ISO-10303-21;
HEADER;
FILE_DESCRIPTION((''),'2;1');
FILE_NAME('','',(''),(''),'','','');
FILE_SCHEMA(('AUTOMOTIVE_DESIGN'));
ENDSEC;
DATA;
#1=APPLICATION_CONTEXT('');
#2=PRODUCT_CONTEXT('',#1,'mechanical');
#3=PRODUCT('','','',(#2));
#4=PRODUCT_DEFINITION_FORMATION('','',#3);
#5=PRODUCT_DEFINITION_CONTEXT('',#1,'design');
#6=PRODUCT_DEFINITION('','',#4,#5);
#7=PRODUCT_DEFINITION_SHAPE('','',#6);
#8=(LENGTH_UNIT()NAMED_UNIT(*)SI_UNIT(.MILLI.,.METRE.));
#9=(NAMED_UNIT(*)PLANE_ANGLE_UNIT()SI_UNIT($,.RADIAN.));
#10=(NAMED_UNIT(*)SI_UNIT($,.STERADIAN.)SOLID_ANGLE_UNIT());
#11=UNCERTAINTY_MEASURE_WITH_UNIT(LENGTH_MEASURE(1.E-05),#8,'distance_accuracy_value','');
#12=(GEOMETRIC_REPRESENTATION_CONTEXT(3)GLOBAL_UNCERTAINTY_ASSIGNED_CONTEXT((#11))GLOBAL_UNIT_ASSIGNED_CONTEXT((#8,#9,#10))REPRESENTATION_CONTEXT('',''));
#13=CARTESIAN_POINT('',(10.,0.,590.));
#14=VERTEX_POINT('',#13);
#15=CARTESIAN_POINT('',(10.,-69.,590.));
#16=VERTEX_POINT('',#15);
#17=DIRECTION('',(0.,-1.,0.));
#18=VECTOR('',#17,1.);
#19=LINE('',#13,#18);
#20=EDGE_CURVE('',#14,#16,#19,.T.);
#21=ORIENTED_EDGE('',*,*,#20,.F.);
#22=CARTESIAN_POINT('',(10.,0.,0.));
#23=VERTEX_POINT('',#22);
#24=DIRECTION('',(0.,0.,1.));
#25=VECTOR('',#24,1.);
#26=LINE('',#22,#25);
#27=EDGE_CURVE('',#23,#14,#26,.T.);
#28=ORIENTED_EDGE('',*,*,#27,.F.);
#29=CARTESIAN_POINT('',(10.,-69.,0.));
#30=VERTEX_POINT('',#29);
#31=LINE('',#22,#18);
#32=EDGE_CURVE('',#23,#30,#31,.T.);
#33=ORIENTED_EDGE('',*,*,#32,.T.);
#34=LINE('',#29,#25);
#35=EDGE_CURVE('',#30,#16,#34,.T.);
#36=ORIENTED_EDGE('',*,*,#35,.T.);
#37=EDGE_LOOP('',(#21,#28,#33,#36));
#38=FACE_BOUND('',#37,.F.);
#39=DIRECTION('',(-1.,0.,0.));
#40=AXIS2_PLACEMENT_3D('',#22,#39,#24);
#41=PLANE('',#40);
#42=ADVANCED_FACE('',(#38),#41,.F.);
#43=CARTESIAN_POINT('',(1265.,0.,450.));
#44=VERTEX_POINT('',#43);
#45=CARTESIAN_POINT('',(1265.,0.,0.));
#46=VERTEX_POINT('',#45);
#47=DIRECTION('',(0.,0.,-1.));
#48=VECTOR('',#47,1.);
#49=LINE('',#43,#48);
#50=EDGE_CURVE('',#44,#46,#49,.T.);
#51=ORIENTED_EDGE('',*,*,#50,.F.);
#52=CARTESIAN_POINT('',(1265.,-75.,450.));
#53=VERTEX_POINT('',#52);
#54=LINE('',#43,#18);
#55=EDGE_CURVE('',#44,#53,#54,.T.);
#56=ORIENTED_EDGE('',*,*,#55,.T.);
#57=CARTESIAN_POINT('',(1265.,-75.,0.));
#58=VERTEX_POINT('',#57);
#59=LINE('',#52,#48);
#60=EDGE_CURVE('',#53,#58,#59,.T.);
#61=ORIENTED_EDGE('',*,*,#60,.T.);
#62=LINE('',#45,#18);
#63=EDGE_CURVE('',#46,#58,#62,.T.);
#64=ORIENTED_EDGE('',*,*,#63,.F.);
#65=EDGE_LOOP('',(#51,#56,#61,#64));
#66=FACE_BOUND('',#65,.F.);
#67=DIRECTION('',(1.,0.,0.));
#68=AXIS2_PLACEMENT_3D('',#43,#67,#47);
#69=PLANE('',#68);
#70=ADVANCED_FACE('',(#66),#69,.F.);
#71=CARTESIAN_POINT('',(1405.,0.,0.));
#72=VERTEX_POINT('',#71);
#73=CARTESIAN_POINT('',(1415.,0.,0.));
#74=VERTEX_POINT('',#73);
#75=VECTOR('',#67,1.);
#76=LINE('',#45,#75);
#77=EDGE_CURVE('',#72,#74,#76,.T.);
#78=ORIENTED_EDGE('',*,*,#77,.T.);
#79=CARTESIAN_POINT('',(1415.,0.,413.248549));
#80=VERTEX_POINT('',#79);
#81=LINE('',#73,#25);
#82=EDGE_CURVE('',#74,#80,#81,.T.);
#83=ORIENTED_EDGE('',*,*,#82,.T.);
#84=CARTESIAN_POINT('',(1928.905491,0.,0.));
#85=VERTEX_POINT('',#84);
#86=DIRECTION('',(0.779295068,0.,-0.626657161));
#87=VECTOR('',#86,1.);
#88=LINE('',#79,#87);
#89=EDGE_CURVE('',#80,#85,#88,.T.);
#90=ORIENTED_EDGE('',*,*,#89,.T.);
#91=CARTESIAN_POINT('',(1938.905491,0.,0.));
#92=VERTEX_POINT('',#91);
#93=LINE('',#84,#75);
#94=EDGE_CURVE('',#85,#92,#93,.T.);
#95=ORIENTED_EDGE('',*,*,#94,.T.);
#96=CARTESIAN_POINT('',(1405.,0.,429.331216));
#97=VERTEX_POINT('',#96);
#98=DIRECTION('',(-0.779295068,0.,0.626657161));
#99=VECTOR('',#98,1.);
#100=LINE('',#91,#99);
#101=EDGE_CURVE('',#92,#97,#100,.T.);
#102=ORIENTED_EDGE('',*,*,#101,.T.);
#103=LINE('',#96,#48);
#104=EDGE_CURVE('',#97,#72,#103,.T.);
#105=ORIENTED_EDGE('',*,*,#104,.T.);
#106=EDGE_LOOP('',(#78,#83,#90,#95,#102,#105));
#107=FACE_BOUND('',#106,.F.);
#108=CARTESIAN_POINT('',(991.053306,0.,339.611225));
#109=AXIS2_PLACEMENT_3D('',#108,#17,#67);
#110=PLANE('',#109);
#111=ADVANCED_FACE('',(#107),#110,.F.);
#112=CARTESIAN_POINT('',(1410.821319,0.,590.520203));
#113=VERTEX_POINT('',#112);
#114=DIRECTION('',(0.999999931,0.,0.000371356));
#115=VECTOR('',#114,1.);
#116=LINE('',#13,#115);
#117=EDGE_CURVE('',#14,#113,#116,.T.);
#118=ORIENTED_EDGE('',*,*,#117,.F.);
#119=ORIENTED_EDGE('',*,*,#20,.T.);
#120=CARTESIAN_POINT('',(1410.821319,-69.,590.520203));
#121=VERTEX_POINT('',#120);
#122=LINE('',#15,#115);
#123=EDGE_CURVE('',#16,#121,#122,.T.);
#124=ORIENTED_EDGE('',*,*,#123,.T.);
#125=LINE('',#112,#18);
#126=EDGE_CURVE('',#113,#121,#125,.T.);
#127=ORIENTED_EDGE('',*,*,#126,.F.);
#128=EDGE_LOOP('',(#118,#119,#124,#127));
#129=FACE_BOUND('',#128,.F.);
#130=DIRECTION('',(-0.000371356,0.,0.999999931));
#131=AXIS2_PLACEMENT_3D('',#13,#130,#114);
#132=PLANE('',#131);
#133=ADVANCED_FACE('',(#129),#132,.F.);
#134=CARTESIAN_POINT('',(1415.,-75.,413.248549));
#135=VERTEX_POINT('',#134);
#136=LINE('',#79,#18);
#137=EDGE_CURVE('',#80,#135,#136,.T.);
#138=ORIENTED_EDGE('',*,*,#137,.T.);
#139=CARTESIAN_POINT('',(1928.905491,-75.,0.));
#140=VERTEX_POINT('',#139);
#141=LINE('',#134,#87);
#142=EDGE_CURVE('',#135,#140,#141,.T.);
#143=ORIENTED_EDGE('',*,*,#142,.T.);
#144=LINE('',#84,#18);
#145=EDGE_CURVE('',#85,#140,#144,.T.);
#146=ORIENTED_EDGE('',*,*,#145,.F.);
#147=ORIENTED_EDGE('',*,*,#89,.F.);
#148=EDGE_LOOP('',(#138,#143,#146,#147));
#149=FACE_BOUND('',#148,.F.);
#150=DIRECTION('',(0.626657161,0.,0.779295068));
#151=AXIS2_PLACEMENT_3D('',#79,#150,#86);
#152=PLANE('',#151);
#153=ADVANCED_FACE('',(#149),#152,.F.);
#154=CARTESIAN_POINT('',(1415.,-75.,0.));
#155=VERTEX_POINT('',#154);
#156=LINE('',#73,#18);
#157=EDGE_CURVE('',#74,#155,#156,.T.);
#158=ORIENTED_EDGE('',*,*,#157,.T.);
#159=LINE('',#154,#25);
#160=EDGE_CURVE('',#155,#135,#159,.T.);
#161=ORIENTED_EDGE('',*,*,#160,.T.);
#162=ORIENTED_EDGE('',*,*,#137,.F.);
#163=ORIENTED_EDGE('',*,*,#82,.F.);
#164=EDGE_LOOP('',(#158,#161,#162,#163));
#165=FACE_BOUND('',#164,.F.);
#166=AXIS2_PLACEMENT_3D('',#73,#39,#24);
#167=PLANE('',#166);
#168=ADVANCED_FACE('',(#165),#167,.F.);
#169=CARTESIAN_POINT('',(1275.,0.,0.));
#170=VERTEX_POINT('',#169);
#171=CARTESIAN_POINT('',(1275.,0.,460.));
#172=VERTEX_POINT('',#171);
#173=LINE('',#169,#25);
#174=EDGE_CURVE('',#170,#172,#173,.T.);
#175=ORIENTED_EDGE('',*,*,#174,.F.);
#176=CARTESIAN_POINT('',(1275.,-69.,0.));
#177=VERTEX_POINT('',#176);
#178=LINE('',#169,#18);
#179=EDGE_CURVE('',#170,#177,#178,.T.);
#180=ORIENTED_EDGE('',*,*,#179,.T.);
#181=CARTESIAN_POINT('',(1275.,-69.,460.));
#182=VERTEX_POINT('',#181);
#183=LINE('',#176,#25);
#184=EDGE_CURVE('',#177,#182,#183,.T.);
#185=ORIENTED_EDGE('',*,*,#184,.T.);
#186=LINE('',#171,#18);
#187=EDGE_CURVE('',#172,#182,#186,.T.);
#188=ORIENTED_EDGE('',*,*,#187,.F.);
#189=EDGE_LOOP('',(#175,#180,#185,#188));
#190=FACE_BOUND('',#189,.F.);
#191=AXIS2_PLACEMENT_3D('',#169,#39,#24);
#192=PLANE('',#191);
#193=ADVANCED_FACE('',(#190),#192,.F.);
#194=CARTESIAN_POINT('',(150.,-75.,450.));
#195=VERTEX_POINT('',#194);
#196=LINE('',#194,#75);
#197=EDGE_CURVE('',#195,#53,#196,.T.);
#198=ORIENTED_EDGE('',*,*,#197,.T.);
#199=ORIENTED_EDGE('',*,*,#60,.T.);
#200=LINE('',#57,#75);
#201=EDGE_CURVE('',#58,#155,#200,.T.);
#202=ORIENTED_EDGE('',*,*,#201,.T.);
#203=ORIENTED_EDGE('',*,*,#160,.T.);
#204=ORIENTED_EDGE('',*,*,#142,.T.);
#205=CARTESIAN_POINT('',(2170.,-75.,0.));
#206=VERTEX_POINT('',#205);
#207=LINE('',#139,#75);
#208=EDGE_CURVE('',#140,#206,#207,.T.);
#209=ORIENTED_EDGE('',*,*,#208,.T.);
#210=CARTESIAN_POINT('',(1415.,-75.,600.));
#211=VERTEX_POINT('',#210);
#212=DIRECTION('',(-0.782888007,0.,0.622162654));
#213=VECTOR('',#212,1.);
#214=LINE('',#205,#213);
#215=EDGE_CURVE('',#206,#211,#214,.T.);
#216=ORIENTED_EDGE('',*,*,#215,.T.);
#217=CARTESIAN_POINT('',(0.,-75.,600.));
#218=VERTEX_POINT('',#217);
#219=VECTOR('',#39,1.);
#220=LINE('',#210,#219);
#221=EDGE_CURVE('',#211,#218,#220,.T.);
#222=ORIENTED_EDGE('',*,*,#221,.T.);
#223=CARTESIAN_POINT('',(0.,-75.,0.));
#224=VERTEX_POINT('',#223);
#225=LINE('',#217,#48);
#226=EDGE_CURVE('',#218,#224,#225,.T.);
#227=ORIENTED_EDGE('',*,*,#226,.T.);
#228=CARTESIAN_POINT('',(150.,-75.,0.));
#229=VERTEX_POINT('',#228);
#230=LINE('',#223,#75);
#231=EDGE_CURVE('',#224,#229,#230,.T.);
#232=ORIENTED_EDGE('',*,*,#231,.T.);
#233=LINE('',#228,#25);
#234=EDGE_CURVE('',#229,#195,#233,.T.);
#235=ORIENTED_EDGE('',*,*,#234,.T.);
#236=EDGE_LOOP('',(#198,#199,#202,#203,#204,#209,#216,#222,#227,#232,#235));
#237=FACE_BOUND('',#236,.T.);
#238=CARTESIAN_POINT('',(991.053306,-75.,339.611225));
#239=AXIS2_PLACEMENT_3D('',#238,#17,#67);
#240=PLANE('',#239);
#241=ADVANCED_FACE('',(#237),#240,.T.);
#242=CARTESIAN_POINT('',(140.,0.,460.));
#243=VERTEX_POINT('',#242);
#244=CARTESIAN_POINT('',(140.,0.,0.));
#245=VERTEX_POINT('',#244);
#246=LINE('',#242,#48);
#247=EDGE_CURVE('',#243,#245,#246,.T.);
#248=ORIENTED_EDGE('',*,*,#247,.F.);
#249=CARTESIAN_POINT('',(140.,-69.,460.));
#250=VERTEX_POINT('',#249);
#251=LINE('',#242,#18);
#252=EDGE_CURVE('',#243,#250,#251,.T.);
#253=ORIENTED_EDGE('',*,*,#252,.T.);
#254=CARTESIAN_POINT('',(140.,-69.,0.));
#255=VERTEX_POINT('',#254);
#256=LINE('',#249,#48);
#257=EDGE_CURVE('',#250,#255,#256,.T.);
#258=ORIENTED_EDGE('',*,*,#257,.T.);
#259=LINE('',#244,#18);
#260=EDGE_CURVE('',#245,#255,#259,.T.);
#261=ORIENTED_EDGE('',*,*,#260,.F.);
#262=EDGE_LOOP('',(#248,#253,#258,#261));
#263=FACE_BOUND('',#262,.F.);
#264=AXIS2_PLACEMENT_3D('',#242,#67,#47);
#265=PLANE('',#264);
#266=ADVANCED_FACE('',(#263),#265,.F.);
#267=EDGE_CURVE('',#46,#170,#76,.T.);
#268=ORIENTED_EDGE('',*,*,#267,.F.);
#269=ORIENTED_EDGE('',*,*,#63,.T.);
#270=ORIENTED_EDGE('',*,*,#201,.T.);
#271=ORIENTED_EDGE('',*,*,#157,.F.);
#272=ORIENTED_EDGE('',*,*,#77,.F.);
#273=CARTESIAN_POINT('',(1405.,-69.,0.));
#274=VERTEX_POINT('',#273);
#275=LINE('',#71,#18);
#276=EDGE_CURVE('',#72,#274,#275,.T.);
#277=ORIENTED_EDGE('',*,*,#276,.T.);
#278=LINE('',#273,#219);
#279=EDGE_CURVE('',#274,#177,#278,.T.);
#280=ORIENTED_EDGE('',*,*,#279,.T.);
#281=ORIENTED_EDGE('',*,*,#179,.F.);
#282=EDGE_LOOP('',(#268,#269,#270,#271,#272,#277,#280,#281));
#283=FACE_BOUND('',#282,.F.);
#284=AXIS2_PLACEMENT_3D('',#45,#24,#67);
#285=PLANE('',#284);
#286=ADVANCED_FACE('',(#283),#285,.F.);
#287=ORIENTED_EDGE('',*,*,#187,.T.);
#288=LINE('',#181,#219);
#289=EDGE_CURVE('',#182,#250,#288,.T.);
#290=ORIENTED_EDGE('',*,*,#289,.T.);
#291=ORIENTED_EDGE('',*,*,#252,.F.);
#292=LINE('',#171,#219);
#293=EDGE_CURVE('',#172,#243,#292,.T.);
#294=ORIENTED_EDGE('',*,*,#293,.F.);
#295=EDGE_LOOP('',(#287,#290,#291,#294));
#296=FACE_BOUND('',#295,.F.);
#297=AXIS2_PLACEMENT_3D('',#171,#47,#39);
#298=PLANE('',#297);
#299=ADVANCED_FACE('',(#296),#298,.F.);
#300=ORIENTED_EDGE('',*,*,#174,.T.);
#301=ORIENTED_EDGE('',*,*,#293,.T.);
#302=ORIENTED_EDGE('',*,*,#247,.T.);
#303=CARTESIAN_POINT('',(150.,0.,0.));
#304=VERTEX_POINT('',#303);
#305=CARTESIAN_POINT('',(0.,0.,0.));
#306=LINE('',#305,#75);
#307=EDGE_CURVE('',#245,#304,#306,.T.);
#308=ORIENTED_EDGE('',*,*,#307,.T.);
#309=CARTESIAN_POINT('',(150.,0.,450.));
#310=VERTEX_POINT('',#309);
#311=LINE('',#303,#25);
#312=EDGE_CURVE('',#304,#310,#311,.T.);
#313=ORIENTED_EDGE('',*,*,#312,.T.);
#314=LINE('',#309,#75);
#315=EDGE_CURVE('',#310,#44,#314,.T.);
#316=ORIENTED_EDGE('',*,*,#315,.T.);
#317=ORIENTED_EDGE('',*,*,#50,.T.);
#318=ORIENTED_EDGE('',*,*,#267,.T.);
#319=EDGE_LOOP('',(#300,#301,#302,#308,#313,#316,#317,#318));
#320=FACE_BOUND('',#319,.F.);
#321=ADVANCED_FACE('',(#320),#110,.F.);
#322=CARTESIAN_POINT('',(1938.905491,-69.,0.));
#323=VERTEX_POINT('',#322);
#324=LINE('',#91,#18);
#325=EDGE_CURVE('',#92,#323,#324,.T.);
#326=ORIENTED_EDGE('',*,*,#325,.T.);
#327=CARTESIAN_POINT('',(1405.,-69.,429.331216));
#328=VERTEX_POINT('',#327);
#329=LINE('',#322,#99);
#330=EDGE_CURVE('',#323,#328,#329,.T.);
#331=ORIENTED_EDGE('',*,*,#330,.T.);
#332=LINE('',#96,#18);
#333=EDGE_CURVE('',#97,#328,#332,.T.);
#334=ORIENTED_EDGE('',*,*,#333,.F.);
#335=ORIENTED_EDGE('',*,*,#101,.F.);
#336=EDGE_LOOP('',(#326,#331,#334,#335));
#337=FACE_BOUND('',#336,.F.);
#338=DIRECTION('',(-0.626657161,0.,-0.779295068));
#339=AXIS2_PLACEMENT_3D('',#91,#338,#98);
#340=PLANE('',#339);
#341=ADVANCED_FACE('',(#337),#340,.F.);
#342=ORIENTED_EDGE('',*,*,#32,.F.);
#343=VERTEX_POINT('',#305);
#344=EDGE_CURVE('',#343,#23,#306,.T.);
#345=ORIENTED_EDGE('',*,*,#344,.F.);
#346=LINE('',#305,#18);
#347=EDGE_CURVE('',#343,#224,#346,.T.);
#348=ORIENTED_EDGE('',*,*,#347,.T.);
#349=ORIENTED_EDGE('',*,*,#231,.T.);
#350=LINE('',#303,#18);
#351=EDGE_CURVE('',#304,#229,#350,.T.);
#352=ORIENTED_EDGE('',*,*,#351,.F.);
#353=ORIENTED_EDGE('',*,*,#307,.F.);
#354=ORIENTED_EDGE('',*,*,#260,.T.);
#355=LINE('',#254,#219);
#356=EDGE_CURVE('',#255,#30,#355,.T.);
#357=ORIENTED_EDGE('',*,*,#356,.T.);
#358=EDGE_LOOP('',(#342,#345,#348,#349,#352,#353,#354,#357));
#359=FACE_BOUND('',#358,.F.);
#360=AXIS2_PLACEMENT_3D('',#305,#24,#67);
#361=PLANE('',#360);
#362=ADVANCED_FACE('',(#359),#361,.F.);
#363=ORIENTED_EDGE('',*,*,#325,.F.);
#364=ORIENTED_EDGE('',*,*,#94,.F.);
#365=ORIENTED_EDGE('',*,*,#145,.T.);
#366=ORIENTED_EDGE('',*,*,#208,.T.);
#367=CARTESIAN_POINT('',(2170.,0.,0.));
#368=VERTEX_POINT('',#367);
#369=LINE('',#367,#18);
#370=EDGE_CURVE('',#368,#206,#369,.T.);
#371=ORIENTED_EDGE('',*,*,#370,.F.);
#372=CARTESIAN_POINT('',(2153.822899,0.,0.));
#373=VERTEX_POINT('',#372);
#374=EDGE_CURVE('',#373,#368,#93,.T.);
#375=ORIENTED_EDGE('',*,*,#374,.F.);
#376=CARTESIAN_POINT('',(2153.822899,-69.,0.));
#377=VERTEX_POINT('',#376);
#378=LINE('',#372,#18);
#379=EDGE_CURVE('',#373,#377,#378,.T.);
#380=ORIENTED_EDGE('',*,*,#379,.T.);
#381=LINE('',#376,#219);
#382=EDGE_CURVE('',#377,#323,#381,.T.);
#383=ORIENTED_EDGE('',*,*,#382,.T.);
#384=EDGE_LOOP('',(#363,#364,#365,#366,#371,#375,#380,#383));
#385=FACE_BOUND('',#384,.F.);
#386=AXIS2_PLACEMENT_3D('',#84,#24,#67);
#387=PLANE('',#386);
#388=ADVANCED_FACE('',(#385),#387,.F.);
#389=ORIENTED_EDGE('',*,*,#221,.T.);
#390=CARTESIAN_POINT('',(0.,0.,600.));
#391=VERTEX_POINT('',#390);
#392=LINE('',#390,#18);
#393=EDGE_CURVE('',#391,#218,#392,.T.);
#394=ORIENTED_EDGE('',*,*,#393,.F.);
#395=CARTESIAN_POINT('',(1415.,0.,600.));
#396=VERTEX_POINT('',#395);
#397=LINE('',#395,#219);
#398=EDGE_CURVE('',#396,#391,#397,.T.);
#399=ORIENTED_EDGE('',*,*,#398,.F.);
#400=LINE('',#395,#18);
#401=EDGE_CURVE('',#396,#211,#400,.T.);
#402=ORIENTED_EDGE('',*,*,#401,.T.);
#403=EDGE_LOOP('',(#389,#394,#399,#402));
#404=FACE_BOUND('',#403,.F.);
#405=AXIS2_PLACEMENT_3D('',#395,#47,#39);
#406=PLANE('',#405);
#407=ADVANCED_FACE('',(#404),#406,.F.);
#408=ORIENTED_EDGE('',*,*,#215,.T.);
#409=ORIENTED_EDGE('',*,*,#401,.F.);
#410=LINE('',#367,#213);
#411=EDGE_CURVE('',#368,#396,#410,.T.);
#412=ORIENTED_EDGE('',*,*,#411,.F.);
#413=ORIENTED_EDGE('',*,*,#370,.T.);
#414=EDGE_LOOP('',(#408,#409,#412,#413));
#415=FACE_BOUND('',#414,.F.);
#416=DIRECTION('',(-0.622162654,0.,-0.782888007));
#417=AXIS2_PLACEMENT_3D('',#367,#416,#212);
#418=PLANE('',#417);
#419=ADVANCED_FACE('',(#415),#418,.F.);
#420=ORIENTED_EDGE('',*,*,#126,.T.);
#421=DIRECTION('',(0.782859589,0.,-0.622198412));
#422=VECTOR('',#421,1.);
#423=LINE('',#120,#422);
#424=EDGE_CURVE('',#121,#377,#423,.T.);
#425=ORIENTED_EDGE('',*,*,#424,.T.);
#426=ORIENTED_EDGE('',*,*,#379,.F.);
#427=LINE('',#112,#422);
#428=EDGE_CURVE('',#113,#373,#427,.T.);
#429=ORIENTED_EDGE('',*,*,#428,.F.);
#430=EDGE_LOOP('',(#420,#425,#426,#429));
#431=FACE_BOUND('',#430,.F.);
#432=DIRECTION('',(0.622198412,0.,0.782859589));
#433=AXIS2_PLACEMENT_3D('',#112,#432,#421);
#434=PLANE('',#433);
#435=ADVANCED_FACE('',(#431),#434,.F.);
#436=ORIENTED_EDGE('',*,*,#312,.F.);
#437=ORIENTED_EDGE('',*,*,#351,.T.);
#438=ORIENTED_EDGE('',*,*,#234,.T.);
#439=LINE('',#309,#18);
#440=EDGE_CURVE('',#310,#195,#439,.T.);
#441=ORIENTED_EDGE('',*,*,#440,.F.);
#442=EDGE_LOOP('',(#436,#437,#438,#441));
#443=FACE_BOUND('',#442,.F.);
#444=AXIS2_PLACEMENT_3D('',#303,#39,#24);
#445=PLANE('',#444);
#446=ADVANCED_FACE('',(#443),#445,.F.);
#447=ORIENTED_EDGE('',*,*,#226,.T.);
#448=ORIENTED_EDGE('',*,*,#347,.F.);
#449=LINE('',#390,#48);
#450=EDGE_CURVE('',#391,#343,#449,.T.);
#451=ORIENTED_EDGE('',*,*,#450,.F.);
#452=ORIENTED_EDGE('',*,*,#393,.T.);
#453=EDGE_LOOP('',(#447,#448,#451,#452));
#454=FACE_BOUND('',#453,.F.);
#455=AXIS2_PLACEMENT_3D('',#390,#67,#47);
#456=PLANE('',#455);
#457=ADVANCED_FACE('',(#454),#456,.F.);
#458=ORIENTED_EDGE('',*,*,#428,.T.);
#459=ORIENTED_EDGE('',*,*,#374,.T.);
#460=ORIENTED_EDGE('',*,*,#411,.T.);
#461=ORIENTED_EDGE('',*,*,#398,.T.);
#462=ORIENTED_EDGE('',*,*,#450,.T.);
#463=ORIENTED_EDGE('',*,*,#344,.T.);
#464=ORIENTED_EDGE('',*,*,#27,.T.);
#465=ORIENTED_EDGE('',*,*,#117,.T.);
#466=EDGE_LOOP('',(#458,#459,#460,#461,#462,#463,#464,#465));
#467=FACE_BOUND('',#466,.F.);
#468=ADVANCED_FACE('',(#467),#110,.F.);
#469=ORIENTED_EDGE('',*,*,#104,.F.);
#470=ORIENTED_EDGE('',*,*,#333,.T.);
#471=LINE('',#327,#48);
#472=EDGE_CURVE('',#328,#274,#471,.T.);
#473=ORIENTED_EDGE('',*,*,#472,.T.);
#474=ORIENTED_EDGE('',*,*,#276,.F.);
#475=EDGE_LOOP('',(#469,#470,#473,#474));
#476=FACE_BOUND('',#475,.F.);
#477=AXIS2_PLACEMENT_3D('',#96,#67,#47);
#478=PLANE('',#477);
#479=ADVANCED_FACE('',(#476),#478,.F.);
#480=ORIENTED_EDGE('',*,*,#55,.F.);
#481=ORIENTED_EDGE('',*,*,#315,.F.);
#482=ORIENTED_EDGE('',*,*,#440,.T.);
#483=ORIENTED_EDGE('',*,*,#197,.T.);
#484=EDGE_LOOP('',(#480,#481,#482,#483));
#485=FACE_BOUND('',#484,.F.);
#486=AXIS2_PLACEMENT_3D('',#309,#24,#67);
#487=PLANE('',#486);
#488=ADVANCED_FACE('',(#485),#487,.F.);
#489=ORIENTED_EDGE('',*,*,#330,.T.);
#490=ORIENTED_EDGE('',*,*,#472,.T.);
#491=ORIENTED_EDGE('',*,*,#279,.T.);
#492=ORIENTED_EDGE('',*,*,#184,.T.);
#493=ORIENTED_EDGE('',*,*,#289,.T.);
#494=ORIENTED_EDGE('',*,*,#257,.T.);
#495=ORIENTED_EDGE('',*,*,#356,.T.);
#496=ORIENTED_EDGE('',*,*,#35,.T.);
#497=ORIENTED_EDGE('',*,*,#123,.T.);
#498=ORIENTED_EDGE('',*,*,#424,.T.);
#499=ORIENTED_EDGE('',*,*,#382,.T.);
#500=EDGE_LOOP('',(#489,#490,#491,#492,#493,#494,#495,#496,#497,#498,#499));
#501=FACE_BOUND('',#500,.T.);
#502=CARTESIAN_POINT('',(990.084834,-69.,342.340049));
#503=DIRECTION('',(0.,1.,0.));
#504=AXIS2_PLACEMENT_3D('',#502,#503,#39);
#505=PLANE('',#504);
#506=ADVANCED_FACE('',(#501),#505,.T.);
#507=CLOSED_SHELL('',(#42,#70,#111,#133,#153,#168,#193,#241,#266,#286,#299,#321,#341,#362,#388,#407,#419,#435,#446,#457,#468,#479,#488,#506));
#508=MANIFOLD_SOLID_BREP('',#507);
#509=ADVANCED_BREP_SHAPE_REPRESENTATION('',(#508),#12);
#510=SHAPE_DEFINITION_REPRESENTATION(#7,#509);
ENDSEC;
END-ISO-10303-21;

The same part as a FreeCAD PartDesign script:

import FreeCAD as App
import Part
import Sketcher


def add_polygon(sketch, points):
    """Adds a closed chain of lines whose ends are joined by coincident constraints."""
    first, n = sketch.GeometryCount, len(points)
    for a, b in zip(points, points[1:] + points[:1]):
        sketch.addGeometry(Part.LineSegment(App.Vector(*a, 0), App.Vector(*b, 0)), False)
    for i in range(n):
        sketch.addConstraint(Sketcher.Constraint("Coincident", first + i, 2, first + (i + 1) % n, 1))

doc = App.newDocument("Part")
body = doc.addObject("PartDesign::Body", "Body")

# Sketch on XZ plane
sketch1 = body.newObject("Sketcher::SketchObject", "Sketch")
sketch1.AttachmentSupport = (doc.getObject("XZ_Plane"), [""])
sketch1.MapMode = "FlatFace"
add_polygon(sketch1, [(0, 600), (0, 0), (150, 0), (150, 450), (1265, 450), (1265, 0), (1415, 0), (1415, 413), (1929, 0), (2170, 0), (1415, 600)])  # lines 0-10
sketch1.addConstraint([
    Sketcher.Constraint("Vertical", 0),
    Sketcher.Constraint("Horizontal", 1),
    Sketcher.Constraint("Vertical", 2),
    Sketcher.Constraint("Horizontal", 3),
    Sketcher.Constraint("Vertical", 4),
    Sketcher.Constraint("Horizontal", 5),
    Sketcher.Constraint("Vertical", 6),
    Sketcher.Constraint("Horizontal", 8),
    Sketcher.Constraint("Horizontal", 10),
    Sketcher.Constraint("Coincident", 0, 2, -1, 1),
    Sketcher.Constraint("PointOnObject", 4, 2, -1),
    Sketcher.Constraint("PointOnObject", 7, 2, -1),
    Sketcher.Constraint("Vertical", 6, 2, 9, 2),
    Sketcher.Constraint("Equal", 1, 5),
    Sketcher.Constraint("DistanceX", 1, 1, 1, 2, 150.0),
    Sketcher.Constraint("DistanceX", 3, 1, 3, 2, 1115.0),
    Sketcher.Constraint("DistanceY", 0, 2, 0, 1, 600.0),
    Sketcher.Constraint("DistanceY", 2, 1, 2, 2, 450.0),
    Sketcher.Constraint("DistanceX", -1, 1, 8, 2, 2170.0),
    Sketcher.Constraint("DistanceX", 8, 1, 8, 2, 241.094509),
    Sketcher.Constraint("DistanceY", 6, 1, 6, 2, 413.248549),
])
pad1 = body.newObject("PartDesign::Pad", "Pad")
pad1.Profile = sketch1
pad1.Length = 75

# Sketch on XZ plane
sketch2 = body.newObject("Sketcher::SketchObject", "Sketch001")
sketch2.AttachmentSupport = (doc.getObject("XZ_Plane"), [""])
sketch2.MapMode = "FlatFace"
add_polygon(sketch2, [(1405, 0), (1275, 0), (1275, 460), (140, 460), (140, 0), (10, 0), (10, 590), (1411, 591), (2154, 0), (1939, 0), (1405, 429)])  # lines 0-10
sketch2.addConstraint([
    Sketcher.Constraint("Horizontal", 0),
    Sketcher.Constraint("Vertical", 1),
    Sketcher.Constraint("Horizontal", 2),
    Sketcher.Constraint("Vertical", 3),
    Sketcher.Constraint("Horizontal", 4),
    Sketcher.Constraint("Vertical", 5),
    Sketcher.Constraint("Horizontal", 8),
    Sketcher.Constraint("Vertical", 10),
    Sketcher.Constraint("PointOnObject", 0, 2, -1),
    Sketcher.Constraint("PointOnObject", 3, 2, -1),
    Sketcher.Constraint("PointOnObject", 7, 2, -1),
    Sketcher.Constraint("Equal", 0, 4),
    Sketcher.Constraint("DistanceX", 0, 2, 0, 1, 130.0),
    Sketcher.Constraint("DistanceX", 2, 2, 2, 1, 1135.0),
    Sketcher.Constraint("DistanceY", 1, 1, 1, 2, 460.0),
    Sketcher.Constraint("DistanceY", 5, 1, 5, 2, 590.0),
    Sketcher.Constraint("DistanceX", -1, 1, 0, 2, 1275.0),
    Sketcher.Constraint("DistanceX", -1, 1, 7, 2, 2153.822899),
    Sketcher.Constraint("DistanceX", 8, 2, 8, 1, 214.917408),
    Sketcher.Constraint("DistanceY", 10, 2, 10, 1, 429.331216),
    Sketcher.Constraint("DistanceX", -1, 1, 6, 2, 1410.821319),
    Sketcher.Constraint("Distance", 7, 949.086644),
])
pocket1 = body.newObject("PartDesign::Pocket", "Pocket")
pocket1.Profile = sketch2
pocket1.Length = 69
pocket1.Reversed = True

doc.recompute()
